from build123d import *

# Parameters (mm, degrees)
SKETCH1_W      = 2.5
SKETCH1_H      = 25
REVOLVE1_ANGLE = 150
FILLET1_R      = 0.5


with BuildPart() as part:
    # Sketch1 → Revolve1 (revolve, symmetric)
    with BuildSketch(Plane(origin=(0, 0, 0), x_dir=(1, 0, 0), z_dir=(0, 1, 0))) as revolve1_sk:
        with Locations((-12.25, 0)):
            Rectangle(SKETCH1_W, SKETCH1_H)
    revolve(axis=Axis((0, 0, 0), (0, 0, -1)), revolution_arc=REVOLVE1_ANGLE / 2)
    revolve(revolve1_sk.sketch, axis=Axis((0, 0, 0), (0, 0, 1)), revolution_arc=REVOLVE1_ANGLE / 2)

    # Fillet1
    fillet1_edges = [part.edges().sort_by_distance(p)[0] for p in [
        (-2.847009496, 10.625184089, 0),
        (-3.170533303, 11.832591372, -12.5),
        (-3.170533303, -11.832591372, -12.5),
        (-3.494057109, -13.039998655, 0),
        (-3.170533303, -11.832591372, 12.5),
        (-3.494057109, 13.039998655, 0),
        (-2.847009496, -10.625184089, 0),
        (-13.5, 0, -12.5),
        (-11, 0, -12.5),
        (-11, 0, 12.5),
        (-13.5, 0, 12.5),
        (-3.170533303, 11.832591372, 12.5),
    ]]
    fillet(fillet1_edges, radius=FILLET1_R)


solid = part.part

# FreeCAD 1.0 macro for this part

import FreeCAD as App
import Part
import Sketcher
from FreeCAD import Vector


def add_polygon(sketch, points):
    """Adds a closed chain of lines whose ends are joined by coincident constraints."""
    first, n = sketch.GeometryCount, len(points)
    for a, b in zip(points, points[1:] + points[:1]):
        sketch.addGeometry(Part.LineSegment(App.Vector(*a, 0), App.Vector(*b, 0)), False)
    for i in range(n):
        sketch.addConstraint(Sketcher.Constraint("Coincident", first + i, 2, first + (i + 1) % n, 1))

doc = App.newDocument("Part")
body = doc.addObject("PartDesign::Body", "Body")

# Sketch on XZ plane
sketch1 = body.newObject("Sketcher::SketchObject", "Sketch")
sketch1.AttachmentSupport = (doc.getObject("XZ_Plane"), [""])
sketch1.MapMode = "FlatFace"
add_polygon(sketch1, [(-13.5, -12.5), (-13.5, 12.5), (-11, 12.5), (-11, -12.5)])  # lines 0-3
sketch1.addConstraint(Sketcher.Constraint("Vertical", 0))
sketch1.addConstraint(Sketcher.Constraint("Horizontal", 1))
sketch1.addConstraint(Sketcher.Constraint("Vertical", 2))
sketch1.addConstraint(Sketcher.Constraint("Horizontal", 3))
sketch1.addConstraint(Sketcher.Constraint("DistanceY", 0, 1, 0, 2, 25.0))
sketch1.addConstraint(Sketcher.Constraint("DistanceX", 1, 1, 1, 2, 2.5))
sketch1.addConstraint(Sketcher.Constraint("DistanceX", 1, 2, -1, 1, 11.0))
sketch1.addConstraint(Sketcher.Constraint("DistanceY", -1, 1, 0, 2, 12.5))
revolution = body.newObject("PartDesign::Revolution", "Revolution")
revolution.Profile = sketch1
revolution.ReferenceAxis = (sketch1, ["V_Axis"])
revolution.Angle = 75
revolution.Reversed = True

# Sketch on XZ plane
sketch2 = body.newObject("Sketcher::SketchObject", "Sketch001")
sketch2.AttachmentSupport = (doc.getObject("XZ_Plane"), [""])
sketch2.MapMode = "FlatFace"
add_polygon(sketch2, [(-13.5, -12.5), (-13.5, 12.5), (-11, 12.5), (-11, -12.5)])  # lines 0-3
sketch2.addConstraint(Sketcher.Constraint("Vertical", 0))
sketch2.addConstraint(Sketcher.Constraint("Horizontal", 1))
sketch2.addConstraint(Sketcher.Constraint("Vertical", 2))
sketch2.addConstraint(Sketcher.Constraint("Horizontal", 3))
sketch2.addConstraint(Sketcher.Constraint("DistanceY", 0, 1, 0, 2, 25.0))
sketch2.addConstraint(Sketcher.Constraint("DistanceX", 1, 1, 1, 2, 2.5))
sketch2.addConstraint(Sketcher.Constraint("DistanceX", 1, 2, -1, 1, 11.0))
sketch2.addConstraint(Sketcher.Constraint("DistanceY", -1, 1, 0, 2, 12.5))
revolution2 = body.newObject("PartDesign::Revolution", "Revolution001")
revolution2.Profile = sketch2
revolution2.ReferenceAxis = (sketch2, ["V_Axis"])
revolution2.Angle = 75
doc.recompute()

fillet = body.newObject("PartDesign::Fillet", "Fillet")
fillet.Base = (revolution2, ["Edge1"])
fillet.UseAllEdges = True
fillet.Radius = 0.5

doc.recompute()
